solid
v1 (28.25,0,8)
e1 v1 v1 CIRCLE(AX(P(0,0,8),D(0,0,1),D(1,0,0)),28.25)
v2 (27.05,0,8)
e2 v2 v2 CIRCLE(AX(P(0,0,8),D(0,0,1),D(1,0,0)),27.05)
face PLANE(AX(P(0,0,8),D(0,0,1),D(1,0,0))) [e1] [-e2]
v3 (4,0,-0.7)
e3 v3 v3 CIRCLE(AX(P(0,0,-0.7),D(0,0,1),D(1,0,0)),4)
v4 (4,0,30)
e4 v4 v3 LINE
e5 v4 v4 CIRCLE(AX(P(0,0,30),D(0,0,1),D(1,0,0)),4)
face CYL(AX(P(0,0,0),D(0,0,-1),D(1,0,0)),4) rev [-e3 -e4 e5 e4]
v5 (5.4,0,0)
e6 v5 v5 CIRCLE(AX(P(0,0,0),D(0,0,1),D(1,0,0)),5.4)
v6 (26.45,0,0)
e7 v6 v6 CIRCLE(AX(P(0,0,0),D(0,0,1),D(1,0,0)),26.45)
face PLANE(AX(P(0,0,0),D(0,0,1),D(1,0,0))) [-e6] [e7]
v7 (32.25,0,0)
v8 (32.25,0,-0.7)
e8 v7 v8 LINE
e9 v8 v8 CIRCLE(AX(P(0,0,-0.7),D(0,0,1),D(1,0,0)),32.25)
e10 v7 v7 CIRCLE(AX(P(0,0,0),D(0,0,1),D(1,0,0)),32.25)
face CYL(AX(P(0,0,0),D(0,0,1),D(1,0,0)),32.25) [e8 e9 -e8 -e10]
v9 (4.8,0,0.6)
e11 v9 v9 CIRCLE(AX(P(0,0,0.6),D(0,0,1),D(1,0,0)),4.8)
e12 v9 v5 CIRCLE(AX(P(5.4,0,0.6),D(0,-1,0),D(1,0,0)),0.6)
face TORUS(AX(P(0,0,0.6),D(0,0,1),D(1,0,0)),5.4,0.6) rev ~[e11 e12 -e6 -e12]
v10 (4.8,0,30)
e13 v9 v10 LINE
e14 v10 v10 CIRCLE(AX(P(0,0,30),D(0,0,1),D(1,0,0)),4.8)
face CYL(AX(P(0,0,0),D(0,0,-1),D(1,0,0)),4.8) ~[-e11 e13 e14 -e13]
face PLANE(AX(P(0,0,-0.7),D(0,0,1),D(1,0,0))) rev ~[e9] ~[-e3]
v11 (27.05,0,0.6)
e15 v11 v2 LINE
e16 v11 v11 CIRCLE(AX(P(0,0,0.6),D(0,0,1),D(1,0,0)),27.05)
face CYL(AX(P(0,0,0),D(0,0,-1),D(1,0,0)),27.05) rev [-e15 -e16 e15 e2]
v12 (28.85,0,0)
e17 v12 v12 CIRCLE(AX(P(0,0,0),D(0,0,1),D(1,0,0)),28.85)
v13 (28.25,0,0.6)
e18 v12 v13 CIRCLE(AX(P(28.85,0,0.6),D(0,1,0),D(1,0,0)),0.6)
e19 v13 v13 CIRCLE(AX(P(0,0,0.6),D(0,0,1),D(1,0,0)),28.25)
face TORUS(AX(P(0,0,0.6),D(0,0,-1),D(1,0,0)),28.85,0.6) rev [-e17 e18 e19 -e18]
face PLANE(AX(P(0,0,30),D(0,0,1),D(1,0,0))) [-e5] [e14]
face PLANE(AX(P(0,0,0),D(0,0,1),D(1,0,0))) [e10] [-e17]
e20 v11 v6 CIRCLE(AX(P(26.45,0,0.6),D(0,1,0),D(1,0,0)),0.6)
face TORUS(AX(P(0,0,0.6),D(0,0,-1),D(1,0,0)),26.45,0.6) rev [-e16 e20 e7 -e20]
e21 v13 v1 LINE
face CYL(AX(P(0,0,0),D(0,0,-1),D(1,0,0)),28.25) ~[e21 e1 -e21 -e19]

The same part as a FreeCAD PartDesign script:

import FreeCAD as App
import Part
import Sketcher


def edges_at(feature, points):
    """Names of the edges that pass closest to the given points."""
    edges = feature.Shape.Edges
    near = lambda p: min(range(len(edges)), key=lambda i: edges[i].distToShape(Part.Vertex(*p))[0])
    return sorted({f"Edge{near(p) + 1}" for p in points})

doc = App.newDocument("Part")
body = doc.addObject("PartDesign::Body", "Body")

# Sketch on XY plane
sketch1 = body.newObject("Sketcher::SketchObject", "Sketch")
sketch1.AttachmentSupport = (doc.getObject("XY_Plane"), [""])
sketch1.MapMode = "FlatFace"
sketch1.addGeometry(Part.Circle(App.Vector(0, 0, 0), App.Vector(0, 0, 1), 28), False)
sketch1.addGeometry(Part.Circle(App.Vector(0, 0, 0), App.Vector(0, 0, 1), 27), False)
sketch1.addConstraint(Sketcher.Constraint("Coincident", 0, 3, -1, 1))
sketch1.addConstraint(Sketcher.Constraint("Coincident", 1, 3, -1, 1))
sketch1.addConstraint(Sketcher.Constraint("Diameter", 0, 56.5))
sketch1.addConstraint(Sketcher.Constraint("Diameter", 1, 54.1))
pad1 = body.newObject("PartDesign::Pad", "Pad")
pad1.Profile = sketch1
pad1.Length = 8

# Sketch on XY plane
sketch2 = body.newObject("Sketcher::SketchObject", "Sketch001")
sketch2.AttachmentSupport = (doc.getObject("XY_Plane"), [""])
sketch2.MapMode = "FlatFace"
sketch2.addGeometry(Part.Circle(App.Vector(0, 0, 0), App.Vector(0, 0, 1), 32.2), False)
sketch2.addGeometry(Part.Circle(App.Vector(0, 0, 0), App.Vector(0, 0, 1), 4), False)
sketch2.addConstraint(Sketcher.Constraint("Coincident", 0, 3, -1, 1))
sketch2.addConstraint(Sketcher.Constraint("Coincident", 1, 3, -1, 1))
sketch2.addConstraint(Sketcher.Constraint("Diameter", 1, 8.0))
sketch2.addConstraint(Sketcher.Constraint("Diameter", 0, 64.5))
pad2 = body.newObject("PartDesign::Pad", "Pad001")
pad2.Profile = sketch2
pad2.Length = 0.7
pad2.Reversed = True

# Sketch on XY plane
sketch3 = body.newObject("Sketcher::SketchObject", "Sketch002")
sketch3.AttachmentSupport = (doc.getObject("XY_Plane"), [""])
sketch3.MapMode = "FlatFace"
sketch3.addGeometry(Part.Circle(App.Vector(0, 0, 0), App.Vector(0, 0, 1), 4.8), False)
sketch3.addGeometry(Part.Circle(App.Vector(0, 0, 0), App.Vector(0, 0, 1), 4), False)
sketch3.addConstraint(Sketcher.Constraint("Coincident", 0, 3, -1, 1))
sketch3.addConstraint(Sketcher.Constraint("Coincident", 1, 3, -1, 1))
sketch3.addConstraint(Sketcher.Constraint("Diameter", 1, 8.0))
sketch3.addConstraint(Sketcher.Constraint("Diameter", 0, 9.6))
pad3 = body.newObject("PartDesign::Pad", "Pad002")
pad3.Profile = sketch3
pad3.Length = 30
doc.recompute()

fillet = body.newObject("PartDesign::Fillet", "Fillet")
fillet.Base = (pad3, edges_at(pad3, [(-28.25, 0, 0), (-27.05, 0, 0), (-4.8, 0, 0)]))
fillet.Radius = 0.6

doc.recompute()
